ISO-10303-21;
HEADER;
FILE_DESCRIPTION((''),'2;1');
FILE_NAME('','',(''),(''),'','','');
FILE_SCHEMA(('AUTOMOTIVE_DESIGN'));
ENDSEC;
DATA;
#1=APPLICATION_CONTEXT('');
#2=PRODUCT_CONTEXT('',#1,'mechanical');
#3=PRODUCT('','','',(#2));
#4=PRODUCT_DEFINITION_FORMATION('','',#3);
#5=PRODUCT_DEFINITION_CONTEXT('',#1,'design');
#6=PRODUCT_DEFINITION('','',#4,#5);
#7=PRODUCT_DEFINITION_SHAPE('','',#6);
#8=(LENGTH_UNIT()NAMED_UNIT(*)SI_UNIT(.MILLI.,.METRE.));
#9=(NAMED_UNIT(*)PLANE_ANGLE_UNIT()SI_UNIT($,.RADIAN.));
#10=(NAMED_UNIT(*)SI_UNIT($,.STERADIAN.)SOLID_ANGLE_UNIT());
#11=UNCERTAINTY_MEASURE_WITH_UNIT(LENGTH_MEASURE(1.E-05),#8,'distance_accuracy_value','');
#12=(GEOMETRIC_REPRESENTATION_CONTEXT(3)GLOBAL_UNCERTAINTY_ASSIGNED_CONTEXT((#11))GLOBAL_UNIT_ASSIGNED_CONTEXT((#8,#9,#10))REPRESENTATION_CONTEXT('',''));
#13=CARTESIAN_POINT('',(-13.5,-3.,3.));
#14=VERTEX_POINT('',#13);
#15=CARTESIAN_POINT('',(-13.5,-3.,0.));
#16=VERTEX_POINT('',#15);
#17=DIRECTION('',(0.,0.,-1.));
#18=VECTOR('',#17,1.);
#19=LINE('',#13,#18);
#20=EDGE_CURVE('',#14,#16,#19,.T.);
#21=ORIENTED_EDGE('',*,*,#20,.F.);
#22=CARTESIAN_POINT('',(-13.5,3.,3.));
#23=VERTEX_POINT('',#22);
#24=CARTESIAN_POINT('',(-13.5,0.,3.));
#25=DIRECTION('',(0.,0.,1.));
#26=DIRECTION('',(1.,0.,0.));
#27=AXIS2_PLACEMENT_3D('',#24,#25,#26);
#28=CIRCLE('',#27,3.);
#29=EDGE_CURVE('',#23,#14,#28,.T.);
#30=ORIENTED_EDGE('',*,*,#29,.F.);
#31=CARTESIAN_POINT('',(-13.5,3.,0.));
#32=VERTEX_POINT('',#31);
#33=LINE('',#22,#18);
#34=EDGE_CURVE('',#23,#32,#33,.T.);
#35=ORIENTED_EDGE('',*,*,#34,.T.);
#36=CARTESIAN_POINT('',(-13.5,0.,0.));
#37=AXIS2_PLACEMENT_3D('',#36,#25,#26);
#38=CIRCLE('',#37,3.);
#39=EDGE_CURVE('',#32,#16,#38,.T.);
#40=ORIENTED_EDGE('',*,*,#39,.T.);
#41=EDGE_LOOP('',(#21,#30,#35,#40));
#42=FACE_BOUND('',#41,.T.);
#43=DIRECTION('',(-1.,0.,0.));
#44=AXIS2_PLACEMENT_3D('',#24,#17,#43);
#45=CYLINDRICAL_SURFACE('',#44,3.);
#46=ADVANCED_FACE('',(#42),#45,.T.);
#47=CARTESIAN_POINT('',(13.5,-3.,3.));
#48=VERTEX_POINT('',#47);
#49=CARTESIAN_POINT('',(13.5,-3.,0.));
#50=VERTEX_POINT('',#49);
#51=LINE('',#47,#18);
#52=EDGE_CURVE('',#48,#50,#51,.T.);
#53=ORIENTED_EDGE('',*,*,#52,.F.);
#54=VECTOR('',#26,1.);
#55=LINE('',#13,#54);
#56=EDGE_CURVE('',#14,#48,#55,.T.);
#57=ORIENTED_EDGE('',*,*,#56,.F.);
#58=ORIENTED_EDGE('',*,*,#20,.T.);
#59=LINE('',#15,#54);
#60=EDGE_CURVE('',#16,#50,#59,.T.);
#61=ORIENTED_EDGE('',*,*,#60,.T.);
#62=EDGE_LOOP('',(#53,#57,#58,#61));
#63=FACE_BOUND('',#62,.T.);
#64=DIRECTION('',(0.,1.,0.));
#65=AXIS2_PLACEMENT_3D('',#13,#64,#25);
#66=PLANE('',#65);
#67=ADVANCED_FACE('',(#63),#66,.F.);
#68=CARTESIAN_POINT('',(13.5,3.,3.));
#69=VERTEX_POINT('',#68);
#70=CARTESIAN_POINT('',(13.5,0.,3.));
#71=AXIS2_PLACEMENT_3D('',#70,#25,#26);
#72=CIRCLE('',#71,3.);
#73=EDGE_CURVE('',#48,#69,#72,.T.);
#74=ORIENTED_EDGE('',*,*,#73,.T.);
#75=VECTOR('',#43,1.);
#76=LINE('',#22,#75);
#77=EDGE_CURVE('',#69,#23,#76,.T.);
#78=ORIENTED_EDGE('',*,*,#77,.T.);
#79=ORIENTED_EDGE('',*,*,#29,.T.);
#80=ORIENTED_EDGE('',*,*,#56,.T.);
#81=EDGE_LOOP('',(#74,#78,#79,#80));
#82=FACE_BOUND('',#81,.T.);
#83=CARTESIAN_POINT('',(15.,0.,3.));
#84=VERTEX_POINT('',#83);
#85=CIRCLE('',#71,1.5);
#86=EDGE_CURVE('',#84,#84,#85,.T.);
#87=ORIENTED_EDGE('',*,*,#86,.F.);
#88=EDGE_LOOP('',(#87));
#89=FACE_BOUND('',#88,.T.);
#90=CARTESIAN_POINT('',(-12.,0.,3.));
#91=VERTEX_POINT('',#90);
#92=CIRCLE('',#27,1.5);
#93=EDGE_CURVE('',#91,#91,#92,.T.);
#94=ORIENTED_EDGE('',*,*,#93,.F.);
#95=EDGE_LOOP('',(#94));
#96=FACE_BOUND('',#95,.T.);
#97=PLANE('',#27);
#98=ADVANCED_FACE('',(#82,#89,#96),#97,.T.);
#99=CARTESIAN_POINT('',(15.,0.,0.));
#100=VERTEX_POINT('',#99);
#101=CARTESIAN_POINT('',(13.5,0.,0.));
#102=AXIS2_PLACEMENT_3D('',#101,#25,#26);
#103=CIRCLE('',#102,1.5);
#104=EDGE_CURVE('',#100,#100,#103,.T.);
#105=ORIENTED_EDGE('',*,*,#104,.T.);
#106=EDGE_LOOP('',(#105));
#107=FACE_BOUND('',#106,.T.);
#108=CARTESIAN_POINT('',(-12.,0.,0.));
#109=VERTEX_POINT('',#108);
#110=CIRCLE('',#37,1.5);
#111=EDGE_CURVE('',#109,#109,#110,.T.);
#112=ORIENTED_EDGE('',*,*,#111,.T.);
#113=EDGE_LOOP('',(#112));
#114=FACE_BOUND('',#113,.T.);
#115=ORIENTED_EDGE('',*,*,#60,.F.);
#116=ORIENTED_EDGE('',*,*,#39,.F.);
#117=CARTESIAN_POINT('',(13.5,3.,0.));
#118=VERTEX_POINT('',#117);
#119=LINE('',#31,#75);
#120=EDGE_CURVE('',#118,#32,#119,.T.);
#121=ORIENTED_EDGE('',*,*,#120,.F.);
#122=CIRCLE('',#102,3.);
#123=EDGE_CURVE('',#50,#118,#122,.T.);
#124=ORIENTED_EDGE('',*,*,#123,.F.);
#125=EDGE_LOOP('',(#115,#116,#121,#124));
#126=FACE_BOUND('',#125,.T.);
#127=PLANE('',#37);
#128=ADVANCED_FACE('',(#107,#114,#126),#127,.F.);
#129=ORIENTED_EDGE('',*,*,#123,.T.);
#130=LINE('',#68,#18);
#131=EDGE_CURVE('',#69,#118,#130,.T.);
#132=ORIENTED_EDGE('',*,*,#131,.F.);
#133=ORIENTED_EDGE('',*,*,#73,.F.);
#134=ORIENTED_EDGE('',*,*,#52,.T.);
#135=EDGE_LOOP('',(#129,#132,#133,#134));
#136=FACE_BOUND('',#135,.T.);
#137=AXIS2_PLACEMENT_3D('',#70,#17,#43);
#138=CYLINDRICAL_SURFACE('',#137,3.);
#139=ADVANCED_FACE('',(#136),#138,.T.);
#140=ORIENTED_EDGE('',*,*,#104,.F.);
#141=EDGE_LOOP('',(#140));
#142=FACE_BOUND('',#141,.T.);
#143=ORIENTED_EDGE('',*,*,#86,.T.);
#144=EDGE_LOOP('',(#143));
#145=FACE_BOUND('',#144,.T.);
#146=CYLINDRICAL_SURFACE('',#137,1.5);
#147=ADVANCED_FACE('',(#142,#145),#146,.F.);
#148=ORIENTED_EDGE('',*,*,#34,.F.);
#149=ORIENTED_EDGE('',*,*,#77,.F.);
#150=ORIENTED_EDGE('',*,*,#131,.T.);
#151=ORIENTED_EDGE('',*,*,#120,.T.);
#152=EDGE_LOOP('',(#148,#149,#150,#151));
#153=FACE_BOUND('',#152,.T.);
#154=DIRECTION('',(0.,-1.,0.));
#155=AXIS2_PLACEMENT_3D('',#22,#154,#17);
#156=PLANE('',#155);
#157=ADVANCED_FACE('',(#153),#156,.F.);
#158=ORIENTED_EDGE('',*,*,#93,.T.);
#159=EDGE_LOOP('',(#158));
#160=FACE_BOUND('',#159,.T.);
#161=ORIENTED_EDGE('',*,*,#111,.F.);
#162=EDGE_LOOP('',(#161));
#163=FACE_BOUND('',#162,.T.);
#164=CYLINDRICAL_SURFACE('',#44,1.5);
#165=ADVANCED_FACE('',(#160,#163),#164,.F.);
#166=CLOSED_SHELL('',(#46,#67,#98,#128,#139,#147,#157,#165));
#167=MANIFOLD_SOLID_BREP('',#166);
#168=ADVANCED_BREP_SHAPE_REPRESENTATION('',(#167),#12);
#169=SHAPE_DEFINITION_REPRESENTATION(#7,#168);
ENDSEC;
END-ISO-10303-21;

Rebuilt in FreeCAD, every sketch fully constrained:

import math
import FreeCAD as App
import Part
import Sketcher

V = App.Vector
Q = App.Units.Quantity

doc = App.newDocument("Part")
body = doc.addObject("PartDesign::Body", "Body")

sketch1 = doc.addObject("Sketcher::SketchObject", "Sketch")
body.addObject(sketch1)
sketch1.AttachmentSupport = (doc.XY_Plane, [""])
sketch1.MapMode = "FlatFace"
sketch1.addGeometry([
    Part.LineSegment(V(13.5, 3, 0), V(-13.5, 3, 0)),
    Part.ArcOfCircle(Part.Circle(V(-13.5, 0, 0), V(0, 0, 1), 3), math.radians(90), math.radians(270)),
    Part.LineSegment(V(-13.5, -3, 0), V(13.5, -3, 0)),
    Part.ArcOfCircle(Part.Circle(V(13.5, 0, 0), V(0, 0, 1), 3), math.radians(-90), math.radians(90)),
    Part.Circle(V(13.5, 0, 0), V(0, 0, 1), 1.5),
    Part.Circle(V(-13.5, 0, 0), V(0, 0, 1), 1.5),
], False)
sketch1.addConstraint([
    Sketcher.Constraint("Tangent", 0, 2, 1, 1),
    Sketcher.Constraint("Tangent", 1, 2, 2, 1),
    Sketcher.Constraint("Tangent", 2, 2, 3, 1),
    Sketcher.Constraint("Tangent", 3, 2, 0, 1),
    Sketcher.Constraint("Horizontal", 0),
    Sketcher.Constraint("Horizontal", 2),
    Sketcher.Constraint("Coincident", 4, 3, 3, 3),
    Sketcher.Constraint("Coincident", 5, 3, 1, 3),
    Sketcher.Constraint("Equal", 4, 5),
    Sketcher.Constraint("Symmetric", 1, 3, 3, 3, -1, 1),
    Sketcher.Constraint("Diameter", 4, Q("3 mm")),
    Sketcher.Constraint("Radius", 1, Q("3 mm")),
    Sketcher.Constraint("DistanceX", 0, 2, 0, 1, Q("27 mm")),
])
pad1 = doc.addObject("PartDesign::Pad", "Pad")
body.addObject(pad1)
pad1.Profile = sketch1
pad1.Length = 3

doc.recompute()
